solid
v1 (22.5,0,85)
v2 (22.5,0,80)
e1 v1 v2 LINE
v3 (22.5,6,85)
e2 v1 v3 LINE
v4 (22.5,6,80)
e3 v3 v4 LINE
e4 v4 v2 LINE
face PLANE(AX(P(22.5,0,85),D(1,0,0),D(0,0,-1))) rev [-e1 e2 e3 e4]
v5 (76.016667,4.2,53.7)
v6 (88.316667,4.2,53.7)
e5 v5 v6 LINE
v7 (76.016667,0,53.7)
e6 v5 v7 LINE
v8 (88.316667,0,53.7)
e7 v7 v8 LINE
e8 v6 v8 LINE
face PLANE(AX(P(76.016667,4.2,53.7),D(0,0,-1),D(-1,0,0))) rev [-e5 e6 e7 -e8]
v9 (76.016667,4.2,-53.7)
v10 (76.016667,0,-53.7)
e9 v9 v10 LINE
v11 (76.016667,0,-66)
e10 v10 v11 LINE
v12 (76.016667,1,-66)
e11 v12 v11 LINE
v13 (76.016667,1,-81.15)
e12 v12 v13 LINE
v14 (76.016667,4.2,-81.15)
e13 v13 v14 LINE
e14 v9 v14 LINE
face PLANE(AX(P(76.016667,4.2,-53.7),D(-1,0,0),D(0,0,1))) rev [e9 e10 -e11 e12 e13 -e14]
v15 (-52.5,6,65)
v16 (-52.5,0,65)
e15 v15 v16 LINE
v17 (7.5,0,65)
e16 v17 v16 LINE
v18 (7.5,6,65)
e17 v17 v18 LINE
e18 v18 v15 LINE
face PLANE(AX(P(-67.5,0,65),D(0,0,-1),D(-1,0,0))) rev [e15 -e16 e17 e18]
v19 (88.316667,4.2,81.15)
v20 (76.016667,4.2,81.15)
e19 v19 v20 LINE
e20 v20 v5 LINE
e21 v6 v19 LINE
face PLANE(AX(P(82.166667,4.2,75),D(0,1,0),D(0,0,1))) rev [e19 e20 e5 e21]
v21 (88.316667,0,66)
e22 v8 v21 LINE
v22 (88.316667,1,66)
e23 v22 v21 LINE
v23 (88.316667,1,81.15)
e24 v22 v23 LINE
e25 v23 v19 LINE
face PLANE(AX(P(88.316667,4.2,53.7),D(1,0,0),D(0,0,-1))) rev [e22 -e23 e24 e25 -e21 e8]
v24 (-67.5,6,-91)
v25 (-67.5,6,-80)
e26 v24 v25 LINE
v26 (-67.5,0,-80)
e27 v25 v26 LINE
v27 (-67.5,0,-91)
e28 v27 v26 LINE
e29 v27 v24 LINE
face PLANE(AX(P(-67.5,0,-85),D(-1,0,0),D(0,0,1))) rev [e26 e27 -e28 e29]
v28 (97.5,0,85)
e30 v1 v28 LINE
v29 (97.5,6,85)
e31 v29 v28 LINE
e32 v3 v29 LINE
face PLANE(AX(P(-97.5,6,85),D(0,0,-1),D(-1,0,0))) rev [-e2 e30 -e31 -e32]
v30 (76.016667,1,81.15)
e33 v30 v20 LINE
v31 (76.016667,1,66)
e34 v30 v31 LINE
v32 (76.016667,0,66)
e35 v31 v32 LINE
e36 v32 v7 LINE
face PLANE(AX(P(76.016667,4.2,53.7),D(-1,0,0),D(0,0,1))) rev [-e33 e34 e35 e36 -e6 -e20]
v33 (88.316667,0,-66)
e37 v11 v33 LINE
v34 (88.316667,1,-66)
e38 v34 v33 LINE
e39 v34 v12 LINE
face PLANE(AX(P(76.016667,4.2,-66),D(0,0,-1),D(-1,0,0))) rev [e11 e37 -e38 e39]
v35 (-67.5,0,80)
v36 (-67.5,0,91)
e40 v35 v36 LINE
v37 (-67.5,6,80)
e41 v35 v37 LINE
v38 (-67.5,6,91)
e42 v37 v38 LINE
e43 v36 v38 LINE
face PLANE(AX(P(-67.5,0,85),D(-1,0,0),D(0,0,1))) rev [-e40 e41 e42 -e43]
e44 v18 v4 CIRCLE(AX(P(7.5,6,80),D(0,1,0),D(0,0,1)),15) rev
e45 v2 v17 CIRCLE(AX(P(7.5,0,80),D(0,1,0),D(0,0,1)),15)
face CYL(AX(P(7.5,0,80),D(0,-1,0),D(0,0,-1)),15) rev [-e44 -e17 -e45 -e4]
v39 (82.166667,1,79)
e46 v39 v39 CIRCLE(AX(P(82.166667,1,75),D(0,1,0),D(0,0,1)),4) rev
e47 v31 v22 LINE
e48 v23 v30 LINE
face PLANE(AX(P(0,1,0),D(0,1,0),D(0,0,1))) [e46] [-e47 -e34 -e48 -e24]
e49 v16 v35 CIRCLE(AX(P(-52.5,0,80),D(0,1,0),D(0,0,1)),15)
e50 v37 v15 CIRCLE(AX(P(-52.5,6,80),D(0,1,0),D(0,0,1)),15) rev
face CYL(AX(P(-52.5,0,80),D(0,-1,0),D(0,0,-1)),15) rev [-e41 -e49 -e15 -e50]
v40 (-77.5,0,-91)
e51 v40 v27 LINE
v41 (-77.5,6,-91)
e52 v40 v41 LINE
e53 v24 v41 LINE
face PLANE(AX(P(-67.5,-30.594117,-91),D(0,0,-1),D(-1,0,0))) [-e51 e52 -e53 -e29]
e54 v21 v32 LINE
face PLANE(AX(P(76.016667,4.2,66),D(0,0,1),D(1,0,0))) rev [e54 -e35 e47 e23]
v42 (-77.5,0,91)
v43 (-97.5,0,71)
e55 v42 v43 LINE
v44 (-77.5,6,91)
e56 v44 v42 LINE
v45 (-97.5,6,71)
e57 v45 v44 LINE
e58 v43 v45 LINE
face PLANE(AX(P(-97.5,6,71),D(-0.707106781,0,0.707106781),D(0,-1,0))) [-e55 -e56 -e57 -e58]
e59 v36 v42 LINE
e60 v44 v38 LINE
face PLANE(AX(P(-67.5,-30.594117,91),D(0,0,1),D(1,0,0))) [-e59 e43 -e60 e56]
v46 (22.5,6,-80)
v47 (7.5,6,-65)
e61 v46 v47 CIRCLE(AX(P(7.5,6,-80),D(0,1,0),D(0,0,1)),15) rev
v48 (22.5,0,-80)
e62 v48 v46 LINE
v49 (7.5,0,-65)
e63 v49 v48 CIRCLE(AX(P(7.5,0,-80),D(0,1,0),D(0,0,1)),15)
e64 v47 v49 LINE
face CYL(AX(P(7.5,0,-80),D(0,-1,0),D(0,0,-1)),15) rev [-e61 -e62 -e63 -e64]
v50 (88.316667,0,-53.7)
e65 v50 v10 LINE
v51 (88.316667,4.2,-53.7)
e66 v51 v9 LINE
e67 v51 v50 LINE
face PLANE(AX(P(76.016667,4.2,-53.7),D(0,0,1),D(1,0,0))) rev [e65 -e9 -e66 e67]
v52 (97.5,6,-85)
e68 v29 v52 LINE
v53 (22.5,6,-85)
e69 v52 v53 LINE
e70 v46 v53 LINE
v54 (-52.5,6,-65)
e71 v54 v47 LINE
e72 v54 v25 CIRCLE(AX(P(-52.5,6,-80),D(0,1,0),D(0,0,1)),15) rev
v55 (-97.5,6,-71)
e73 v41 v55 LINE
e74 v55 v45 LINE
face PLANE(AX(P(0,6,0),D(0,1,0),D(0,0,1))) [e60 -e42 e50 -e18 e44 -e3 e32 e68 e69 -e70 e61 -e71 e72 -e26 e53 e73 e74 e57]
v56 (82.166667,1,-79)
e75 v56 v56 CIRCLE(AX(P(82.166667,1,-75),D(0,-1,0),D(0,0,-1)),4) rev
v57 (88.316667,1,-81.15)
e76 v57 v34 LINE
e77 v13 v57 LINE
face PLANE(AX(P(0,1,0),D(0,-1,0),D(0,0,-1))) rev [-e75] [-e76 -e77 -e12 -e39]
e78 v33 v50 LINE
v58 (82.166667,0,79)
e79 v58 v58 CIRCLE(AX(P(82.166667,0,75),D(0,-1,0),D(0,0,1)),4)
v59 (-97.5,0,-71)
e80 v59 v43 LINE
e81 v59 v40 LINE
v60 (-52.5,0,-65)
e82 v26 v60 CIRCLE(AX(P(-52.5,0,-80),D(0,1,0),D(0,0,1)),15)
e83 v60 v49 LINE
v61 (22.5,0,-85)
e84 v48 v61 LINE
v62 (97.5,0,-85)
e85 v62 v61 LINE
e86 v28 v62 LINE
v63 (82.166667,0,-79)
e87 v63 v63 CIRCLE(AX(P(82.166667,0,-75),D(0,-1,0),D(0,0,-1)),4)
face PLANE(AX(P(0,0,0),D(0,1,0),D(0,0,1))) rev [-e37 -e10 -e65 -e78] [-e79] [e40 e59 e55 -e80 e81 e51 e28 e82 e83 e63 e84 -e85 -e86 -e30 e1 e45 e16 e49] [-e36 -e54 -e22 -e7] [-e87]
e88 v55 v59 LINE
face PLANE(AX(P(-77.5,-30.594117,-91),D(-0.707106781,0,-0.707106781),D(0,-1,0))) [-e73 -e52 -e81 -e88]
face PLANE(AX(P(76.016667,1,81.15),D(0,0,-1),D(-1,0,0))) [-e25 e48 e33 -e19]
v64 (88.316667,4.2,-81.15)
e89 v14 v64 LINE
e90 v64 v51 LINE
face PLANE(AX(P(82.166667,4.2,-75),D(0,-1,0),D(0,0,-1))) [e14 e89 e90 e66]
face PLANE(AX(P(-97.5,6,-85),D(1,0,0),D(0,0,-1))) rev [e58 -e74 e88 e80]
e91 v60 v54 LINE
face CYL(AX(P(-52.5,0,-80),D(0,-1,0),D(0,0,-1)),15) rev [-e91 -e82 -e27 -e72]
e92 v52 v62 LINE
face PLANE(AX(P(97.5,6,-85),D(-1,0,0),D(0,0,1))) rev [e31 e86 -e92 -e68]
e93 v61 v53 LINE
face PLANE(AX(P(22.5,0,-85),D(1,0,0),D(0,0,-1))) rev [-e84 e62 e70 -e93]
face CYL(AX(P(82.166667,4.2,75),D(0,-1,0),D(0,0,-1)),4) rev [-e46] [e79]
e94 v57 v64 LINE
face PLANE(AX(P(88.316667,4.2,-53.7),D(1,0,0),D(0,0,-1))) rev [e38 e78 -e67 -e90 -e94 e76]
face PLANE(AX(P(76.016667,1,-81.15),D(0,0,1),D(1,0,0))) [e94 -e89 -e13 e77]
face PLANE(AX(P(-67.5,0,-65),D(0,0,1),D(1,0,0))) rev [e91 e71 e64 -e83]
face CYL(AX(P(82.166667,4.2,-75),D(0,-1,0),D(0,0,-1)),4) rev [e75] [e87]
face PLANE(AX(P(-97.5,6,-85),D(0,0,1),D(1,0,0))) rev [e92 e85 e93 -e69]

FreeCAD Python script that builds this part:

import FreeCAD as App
import Part
import Sketcher
from FreeCAD import Vector


def edges_at(feature, points):
    """Names of the edges that pass closest to the given points."""
    edges = feature.Shape.Edges
    near = lambda p: min(range(len(edges)), key=lambda i: edges[i].distToShape(Part.Vertex(*p))[0])
    return sorted({f"Edge{near(p) + 1}" for p in points})

doc = App.newDocument("Part")
body = doc.addObject("PartDesign::Body", "Body")

# Sketch on XZ plane
sketch1 = doc.addObject("Sketcher::SketchObject", "Sketch")
body.addObject(sketch1)
sketch1.AttachmentSupport = (doc.XZ_Plane, [""])
sketch1.MapMode = "FlatFace"
sketch1.addGeometry(Part.LineSegment(Vector(-97.5, -85, 0), Vector(-97.5, 85, 0)), False)
sketch1.addGeometry(Part.LineSegment(Vector(-97.5, 85, 0), Vector(97.5, 85, 0)), False)
sketch1.addGeometry(Part.LineSegment(Vector(97.5, 85, 0), Vector(97.5, -85, 0)), False)
sketch1.addGeometry(Part.LineSegment(Vector(97.5, -85, 0), Vector(-97.5, -85, 0)), False)
sketch1.addConstraint(Sketcher.Constraint("Coincident", 0, 2, 1, 1))
sketch1.addConstraint(Sketcher.Constraint("Coincident", 1, 2, 2, 1))
sketch1.addConstraint(Sketcher.Constraint("Coincident", 2, 2, 3, 1))
sketch1.addConstraint(Sketcher.Constraint("Coincident", 3, 2, 0, 1))
sketch1.addConstraint(Sketcher.Constraint("Vertical", 0))
sketch1.addConstraint(Sketcher.Constraint("Horizontal", 1))
sketch1.addConstraint(Sketcher.Constraint("Vertical", 2))
sketch1.addConstraint(Sketcher.Constraint("Horizontal", 3))
sketch1.addConstraint(Sketcher.Constraint("Symmetric", 0, 2, 2, 2, -1, 1))
sketch1.addConstraint(Sketcher.Constraint("DistanceX", 1, 1, 1, 2, 195.0))
sketch1.addConstraint(Sketcher.Constraint("DistanceY", 0, 1, 0, 2, 170.0))
pad1 = doc.addObject("PartDesign::Pad", "Pad")
body.addObject(pad1)
pad1.Profile = sketch1
pad1.Length = 6
pad1.Reversed = True

# Sketch on XZ plane
sketch2 = doc.addObject("Sketcher::SketchObject", "Sketch001")
body.addObject(sketch2)
sketch2.AttachmentSupport = (doc.XZ_Plane, [""])
sketch2.MapMode = "FlatFace"
sketch2.AttachmentOffset = App.Placement(Vector(0, 0, -6), App.Rotation())
sketch2.addGeometry(Part.LineSegment(Vector(-67.5, 65, 0), Vector(-67.5, 85, 0)), False)
sketch2.addGeometry(Part.LineSegment(Vector(-67.5, 85, 0), Vector(22.5, 85, 0)), False)
sketch2.addGeometry(Part.LineSegment(Vector(22.5, 85, 0), Vector(22.5, 65, 0)), False)
sketch2.addGeometry(Part.LineSegment(Vector(22.5, 65, 0), Vector(-67.5, 65, 0)), False)
sketch2.addGeometry(Part.LineSegment(Vector(-67.5, -85, 0), Vector(-67.5, -65, 0)), False)
sketch2.addGeometry(Part.LineSegment(Vector(-67.5, -65, 0), Vector(22.5, -65, 0)), False)
sketch2.addGeometry(Part.LineSegment(Vector(22.5, -65, 0), Vector(22.5, -85, 0)), False)
sketch2.addGeometry(Part.LineSegment(Vector(22.5, -85, 0), Vector(-67.5, -85, 0)), False)
sketch2.addConstraint(Sketcher.Constraint("Coincident", 0, 2, 1, 1))
sketch2.addConstraint(Sketcher.Constraint("Coincident", 1, 2, 2, 1))
sketch2.addConstraint(Sketcher.Constraint("Coincident", 2, 2, 3, 1))
sketch2.addConstraint(Sketcher.Constraint("Coincident", 3, 2, 0, 1))
sketch2.addConstraint(Sketcher.Constraint("Coincident", 4, 2, 5, 1))
sketch2.addConstraint(Sketcher.Constraint("Coincident", 5, 2, 6, 1))
sketch2.addConstraint(Sketcher.Constraint("Coincident", 6, 2, 7, 1))
sketch2.addConstraint(Sketcher.Constraint("Coincident", 7, 2, 4, 1))
sketch2.addConstraint(Sketcher.Constraint("Vertical", 0))
sketch2.addConstraint(Sketcher.Constraint("Horizontal", 1))
sketch2.addConstraint(Sketcher.Constraint("Vertical", 2))
sketch2.addConstraint(Sketcher.Constraint("Horizontal", 3))
sketch2.addConstraint(Sketcher.Constraint("Vertical", 4))
sketch2.addConstraint(Sketcher.Constraint("Horizontal", 5))
sketch2.addConstraint(Sketcher.Constraint("Vertical", 6))
sketch2.addConstraint(Sketcher.Constraint("Horizontal", 7))
sketch2.addConstraint(Sketcher.Constraint("Symmetric", 3, 2, 4, 2, -1))
sketch2.addConstraint(Sketcher.Constraint("Symmetric", 1, 2, 6, 2, -1))
sketch2.addConstraint(Sketcher.Constraint("DistanceX", 1, 1, 1, 2, 90.0))
sketch2.addConstraint(Sketcher.Constraint("DistanceY", 0, 1, 0, 2, 20.0))
sketch2.addConstraint(Sketcher.Constraint("DistanceY", -1, 1, 0, 2, 85.0))
sketch2.addConstraint(Sketcher.Constraint("DistanceX", 0, 2, -1, 1, 67.5))
pocket1 = doc.addObject("PartDesign::Pocket", "Pocket")
body.addObject(pocket1)
pocket1.Profile = sketch2
pocket1.Type = "ThroughAll"
pocket1.Reversed = True
doc.recompute()

fillet = doc.addObject("PartDesign::Fillet", "Fillet")
body.addObject(fillet)
fillet.Base = (pocket1, edges_at(pocket1, [
    (-67.5, 3, 65),
    (22.5, 3, 65),
    (-67.5, 3, -65),
    (22.5, 3, -65),
]))
fillet.Radius = 15

# Sketch on XZ plane
sketch3 = doc.addObject("Sketcher::SketchObject", "Sketch002")
body.addObject(sketch3)
sketch3.AttachmentSupport = (doc.XZ_Plane, [""])
sketch3.MapMode = "FlatFace"
sketch3.AttachmentOffset = App.Placement(Vector(0, 0, -6), App.Rotation())
sketch3.addGeometry(Part.LineSegment(Vector(-97.5, -91, 0), Vector(-97.5, -85, 0)), False)
sketch3.addGeometry(Part.LineSegment(Vector(-97.5, -85, 0), Vector(-67.5, -85, 0)), False)
sketch3.addGeometry(Part.LineSegment(Vector(-67.5, -85, 0), Vector(-67.5, -91, 0)), False)
sketch3.addGeometry(Part.LineSegment(Vector(-67.5, -91, 0), Vector(-97.5, -91, 0)), False)
sketch3.addGeometry(Part.LineSegment(Vector(-97.5, 85, 0), Vector(-97.5, 91, 0)), False)
sketch3.addGeometry(Part.LineSegment(Vector(-97.5, 91, 0), Vector(-67.5, 91, 0)), False)
sketch3.addGeometry(Part.LineSegment(Vector(-67.5, 91, 0), Vector(-67.5, 85, 0)), False)
sketch3.addGeometry(Part.LineSegment(Vector(-67.5, 85, 0), Vector(-97.5, 85, 0)), False)
sketch3.addConstraint(Sketcher.Constraint("Coincident", 0, 2, 1, 1))
sketch3.addConstraint(Sketcher.Constraint("Coincident", 1, 2, 2, 1))
sketch3.addConstraint(Sketcher.Constraint("Coincident", 2, 2, 3, 1))
sketch3.addConstraint(Sketcher.Constraint("Coincident", 3, 2, 0, 1))
sketch3.addConstraint(Sketcher.Constraint("Coincident", 4, 2, 5, 1))
sketch3.addConstraint(Sketcher.Constraint("Coincident", 5, 2, 6, 1))
sketch3.addConstraint(Sketcher.Constraint("Coincident", 6, 2, 7, 1))
sketch3.addConstraint(Sketcher.Constraint("Coincident", 7, 2, 4, 1))
sketch3.addConstraint(Sketcher.Constraint("Vertical", 0))
sketch3.addConstraint(Sketcher.Constraint("Horizontal", 1))
sketch3.addConstraint(Sketcher.Constraint("Vertical", 2))
sketch3.addConstraint(Sketcher.Constraint("Horizontal", 3))
sketch3.addConstraint(Sketcher.Constraint("Vertical", 4))
sketch3.addConstraint(Sketcher.Constraint("Horizontal", 5))
sketch3.addConstraint(Sketcher.Constraint("Vertical", 6))
sketch3.addConstraint(Sketcher.Constraint("Horizontal", 7))
sketch3.addConstraint(Sketcher.Constraint("Symmetric", 3, 2, 4, 2, -1))
sketch3.addConstraint(Sketcher.Constraint("Symmetric", 1, 2, 6, 2, -1))
sketch3.addConstraint(Sketcher.Constraint("DistanceX", 1, 1, 1, 2, 30.0))
sketch3.addConstraint(Sketcher.Constraint("DistanceY", 0, 1, 0, 2, 6.0))
sketch3.addConstraint(Sketcher.Constraint("DistanceY", 0, 2, -1, 1, 85.0))
sketch3.addConstraint(Sketcher.Constraint("DistanceX", 0, 2, -1, 1, 97.5))
pad2 = doc.addObject("PartDesign::Pad", "Pad001")
body.addObject(pad2)
pad2.Profile = sketch3
pad2.Length = 6
doc.recompute()

chamfer = doc.addObject("PartDesign::Chamfer", "Chamfer")
body.addObject(chamfer)
chamfer.Base = (pad2, edges_at(pad2, [(-97.5, 3, -91), (-97.5, 3, 91)]))
chamfer.Size = 20

# Sketch on XZ plane
sketch4 = doc.addObject("Sketcher::SketchObject", "Sketch003")
body.addObject(sketch4)
sketch4.AttachmentSupport = (doc.XZ_Plane, [""])
sketch4.MapMode = "FlatFace"
sketch4.addGeometry(Part.Circle(Vector(82.166667, -75, 0), Vector(0, 0, 1), 4), False)
sketch4.addGeometry(Part.Circle(Vector(82.166667, 75, 0), Vector(0, 0, 1), 4), False)
sketch4.addConstraint(Sketcher.Constraint("Equal", 0, 1))
sketch4.addConstraint(Sketcher.Constraint("Symmetric", 0, 3, 1, 3, -1))
sketch4.addConstraint(Sketcher.Constraint("Diameter", 0, 8.0))
sketch4.addConstraint(Sketcher.Constraint("DistanceY", 0, 3, -1, 1, 75.0))
sketch4.addConstraint(Sketcher.Constraint("DistanceX", -1, 1, 0, 3, 82.166667))
pocket2 = doc.addObject("PartDesign::Pocket", "Pocket001")
body.addObject(pocket2)
pocket2.Profile = sketch4
pocket2.Length = 4.2

# Sketch on XZ plane
sketch5 = doc.addObject("Sketcher::SketchObject", "Sketch004")
body.addObject(sketch5)
sketch5.AttachmentSupport = (doc.XZ_Plane, [""])
sketch5.MapMode = "FlatFace"
sketch5.addGeometry(Part.LineSegment(Vector(76.016667, 66, 0), Vector(76.016667, 53.7, 0)), False)
sketch5.addGeometry(Part.LineSegment(Vector(76.016667, 53.7, 0), Vector(88.316667, 53.7, 0)), False)
sketch5.addGeometry(Part.LineSegment(Vector(88.316667, 53.7, 0), Vector(88.316667, 66, 0)), False)
sketch5.addGeometry(Part.LineSegment(Vector(88.316667, 66, 0), Vector(76.016667, 66, 0)), False)
sketch5.addGeometry(Part.LineSegment(Vector(76.016667, -53.7, 0), Vector(76.016667, -66, 0)), False)
sketch5.addGeometry(Part.LineSegment(Vector(76.016667, -66, 0), Vector(88.316667, -66, 0)), False)
sketch5.addGeometry(Part.LineSegment(Vector(88.316667, -66, 0), Vector(88.316667, -53.7, 0)), False)
sketch5.addGeometry(Part.LineSegment(Vector(88.316667, -53.7, 0), Vector(76.016667, -53.7, 0)), False)
sketch5.addConstraint(Sketcher.Constraint("Coincident", 0, 2, 1, 1))
sketch5.addConstraint(Sketcher.Constraint("Coincident", 1, 2, 2, 1))
sketch5.addConstraint(Sketcher.Constraint("Coincident", 2, 2, 3, 1))
sketch5.addConstraint(Sketcher.Constraint("Coincident", 3, 2, 0, 1))
sketch5.addConstraint(Sketcher.Constraint("Coincident", 4, 2, 5, 1))
sketch5.addConstraint(Sketcher.Constraint("Coincident", 5, 2, 6, 1))
sketch5.addConstraint(Sketcher.Constraint("Coincident", 6, 2, 7, 1))
sketch5.addConstraint(Sketcher.Constraint("Coincident", 7, 2, 4, 1))
sketch5.addConstraint(Sketcher.Constraint("Vertical", 0))
sketch5.addConstraint(Sketcher.Constraint("Horizontal", 1))
sketch5.addConstraint(Sketcher.Constraint("Vertical", 2))
sketch5.addConstraint(Sketcher.Constraint("Horizontal", 3))
sketch5.addConstraint(Sketcher.Constraint("Vertical", 4))
sketch5.addConstraint(Sketcher.Constraint("Horizontal", 5))
sketch5.addConstraint(Sketcher.Constraint("Vertical", 6))
sketch5.addConstraint(Sketcher.Constraint("Horizontal", 7))
sketch5.addConstraint(Sketcher.Constraint("Symmetric", 3, 2, 4, 2, -1))
sketch5.addConstraint(Sketcher.Constraint("Symmetric", 1, 2, 6, 2, -1))
sketch5.addConstraint(Sketcher.Constraint("Equal", 7, 0))
sketch5.addConstraint(Sketcher.Constraint("DistanceX", 1, 1, 1, 2, 12.3))
sketch5.addConstraint(Sketcher.Constraint("DistanceY", -1, 1, 2, 2, 66.0))
sketch5.addConstraint(Sketcher.Constraint("DistanceX", -1, 1, 0, 2, 76.016667))
pocket3 = doc.addObject("PartDesign::Pocket", "Pocket002")
body.addObject(pocket3)
pocket3.Profile = sketch5
pocket3.Length = 4.2

# Sketch on XZ plane
sketch6 = doc.addObject("Sketcher::SketchObject", "Sketch005")
body.addObject(sketch6)
sketch6.AttachmentSupport = (doc.XZ_Plane, [""])
sketch6.MapMode = "FlatFace"
sketch6.AttachmentOffset = App.Placement(Vector(0, 0, -4.2), App.Rotation())
sketch6.addGeometry(Part.LineSegment(Vector(76.016667, -66, 0), Vector(76.016667, -81.15, 0)), False)
sketch6.addGeometry(Part.LineSegment(Vector(76.016667, -81.15, 0), Vector(88.316667, -81.15, 0)), False)
sketch6.addGeometry(Part.LineSegment(Vector(88.316667, -81.15, 0), Vector(88.316667, -66, 0)), False)
sketch6.addGeometry(Part.LineSegment(Vector(88.316667, -66, 0), Vector(76.016667, -66, 0)), False)
sketch6.addGeometry(Part.LineSegment(Vector(76.016667, 81.15, 0), Vector(76.016667, 66, 0)), False)
sketch6.addGeometry(Part.LineSegment(Vector(76.016667, 66, 0), Vector(88.316667, 66, 0)), False)
sketch6.addGeometry(Part.LineSegment(Vector(88.316667, 66, 0), Vector(88.316667, 81.15, 0)), False)
sketch6.addGeometry(Part.LineSegment(Vector(88.316667, 81.15, 0), Vector(76.016667, 81.15, 0)), False)
sketch6.addConstraint(Sketcher.Constraint("Coincident", 0, 2, 1, 1))
sketch6.addConstraint(Sketcher.Constraint("Coincident", 1, 2, 2, 1))
sketch6.addConstraint(Sketcher.Constraint("Coincident", 2, 2, 3, 1))
sketch6.addConstraint(Sketcher.Constraint("Coincident", 3, 2, 0, 1))
sketch6.addConstraint(Sketcher.Constraint("Coincident", 4, 2, 5, 1))
sketch6.addConstraint(Sketcher.Constraint("Coincident", 5, 2, 6, 1))
sketch6.addConstraint(Sketcher.Constraint("Coincident", 6, 2, 7, 1))
sketch6.addConstraint(Sketcher.Constraint("Coincident", 7, 2, 4, 1))
sketch6.addConstraint(Sketcher.Constraint("Vertical", 0))
sketch6.addConstraint(Sketcher.Constraint("Horizontal", 1))
sketch6.addConstraint(Sketcher.Constraint("Vertical", 2))
sketch6.addConstraint(Sketcher.Constraint("Horizontal", 3))
sketch6.addConstraint(Sketcher.Constraint("Vertical", 4))
sketch6.addConstraint(Sketcher.Constraint("Horizontal", 5))
sketch6.addConstraint(Sketcher.Constraint("Vertical", 6))
sketch6.addConstraint(Sketcher.Constraint("Horizontal", 7))
sketch6.addConstraint(Sketcher.Constraint("Symmetric", 3, 2, 4, 2, -1))
sketch6.addConstraint(Sketcher.Constraint("Symmetric", 1, 2, 6, 2, -1))
sketch6.addConstraint(Sketcher.Constraint("DistanceX", 1, 1, 1, 2, 12.3))
sketch6.addConstraint(Sketcher.Constraint("DistanceY", 2, 2, -1, 1, 66.0))
sketch6.addConstraint(Sketcher.Constraint("DistanceY", 0, 2, 0, 1, 15.15))
sketch6.addConstraint(Sketcher.Constraint("DistanceX", -1, 1, 0, 2, 76.016667))
pocket4 = doc.addObject("PartDesign::Pocket", "Pocket003")
body.addObject(pocket4)
pocket4.Profile = sketch6
pocket4.Length = 3.2
pocket4.Reversed = True

doc.recompute()
